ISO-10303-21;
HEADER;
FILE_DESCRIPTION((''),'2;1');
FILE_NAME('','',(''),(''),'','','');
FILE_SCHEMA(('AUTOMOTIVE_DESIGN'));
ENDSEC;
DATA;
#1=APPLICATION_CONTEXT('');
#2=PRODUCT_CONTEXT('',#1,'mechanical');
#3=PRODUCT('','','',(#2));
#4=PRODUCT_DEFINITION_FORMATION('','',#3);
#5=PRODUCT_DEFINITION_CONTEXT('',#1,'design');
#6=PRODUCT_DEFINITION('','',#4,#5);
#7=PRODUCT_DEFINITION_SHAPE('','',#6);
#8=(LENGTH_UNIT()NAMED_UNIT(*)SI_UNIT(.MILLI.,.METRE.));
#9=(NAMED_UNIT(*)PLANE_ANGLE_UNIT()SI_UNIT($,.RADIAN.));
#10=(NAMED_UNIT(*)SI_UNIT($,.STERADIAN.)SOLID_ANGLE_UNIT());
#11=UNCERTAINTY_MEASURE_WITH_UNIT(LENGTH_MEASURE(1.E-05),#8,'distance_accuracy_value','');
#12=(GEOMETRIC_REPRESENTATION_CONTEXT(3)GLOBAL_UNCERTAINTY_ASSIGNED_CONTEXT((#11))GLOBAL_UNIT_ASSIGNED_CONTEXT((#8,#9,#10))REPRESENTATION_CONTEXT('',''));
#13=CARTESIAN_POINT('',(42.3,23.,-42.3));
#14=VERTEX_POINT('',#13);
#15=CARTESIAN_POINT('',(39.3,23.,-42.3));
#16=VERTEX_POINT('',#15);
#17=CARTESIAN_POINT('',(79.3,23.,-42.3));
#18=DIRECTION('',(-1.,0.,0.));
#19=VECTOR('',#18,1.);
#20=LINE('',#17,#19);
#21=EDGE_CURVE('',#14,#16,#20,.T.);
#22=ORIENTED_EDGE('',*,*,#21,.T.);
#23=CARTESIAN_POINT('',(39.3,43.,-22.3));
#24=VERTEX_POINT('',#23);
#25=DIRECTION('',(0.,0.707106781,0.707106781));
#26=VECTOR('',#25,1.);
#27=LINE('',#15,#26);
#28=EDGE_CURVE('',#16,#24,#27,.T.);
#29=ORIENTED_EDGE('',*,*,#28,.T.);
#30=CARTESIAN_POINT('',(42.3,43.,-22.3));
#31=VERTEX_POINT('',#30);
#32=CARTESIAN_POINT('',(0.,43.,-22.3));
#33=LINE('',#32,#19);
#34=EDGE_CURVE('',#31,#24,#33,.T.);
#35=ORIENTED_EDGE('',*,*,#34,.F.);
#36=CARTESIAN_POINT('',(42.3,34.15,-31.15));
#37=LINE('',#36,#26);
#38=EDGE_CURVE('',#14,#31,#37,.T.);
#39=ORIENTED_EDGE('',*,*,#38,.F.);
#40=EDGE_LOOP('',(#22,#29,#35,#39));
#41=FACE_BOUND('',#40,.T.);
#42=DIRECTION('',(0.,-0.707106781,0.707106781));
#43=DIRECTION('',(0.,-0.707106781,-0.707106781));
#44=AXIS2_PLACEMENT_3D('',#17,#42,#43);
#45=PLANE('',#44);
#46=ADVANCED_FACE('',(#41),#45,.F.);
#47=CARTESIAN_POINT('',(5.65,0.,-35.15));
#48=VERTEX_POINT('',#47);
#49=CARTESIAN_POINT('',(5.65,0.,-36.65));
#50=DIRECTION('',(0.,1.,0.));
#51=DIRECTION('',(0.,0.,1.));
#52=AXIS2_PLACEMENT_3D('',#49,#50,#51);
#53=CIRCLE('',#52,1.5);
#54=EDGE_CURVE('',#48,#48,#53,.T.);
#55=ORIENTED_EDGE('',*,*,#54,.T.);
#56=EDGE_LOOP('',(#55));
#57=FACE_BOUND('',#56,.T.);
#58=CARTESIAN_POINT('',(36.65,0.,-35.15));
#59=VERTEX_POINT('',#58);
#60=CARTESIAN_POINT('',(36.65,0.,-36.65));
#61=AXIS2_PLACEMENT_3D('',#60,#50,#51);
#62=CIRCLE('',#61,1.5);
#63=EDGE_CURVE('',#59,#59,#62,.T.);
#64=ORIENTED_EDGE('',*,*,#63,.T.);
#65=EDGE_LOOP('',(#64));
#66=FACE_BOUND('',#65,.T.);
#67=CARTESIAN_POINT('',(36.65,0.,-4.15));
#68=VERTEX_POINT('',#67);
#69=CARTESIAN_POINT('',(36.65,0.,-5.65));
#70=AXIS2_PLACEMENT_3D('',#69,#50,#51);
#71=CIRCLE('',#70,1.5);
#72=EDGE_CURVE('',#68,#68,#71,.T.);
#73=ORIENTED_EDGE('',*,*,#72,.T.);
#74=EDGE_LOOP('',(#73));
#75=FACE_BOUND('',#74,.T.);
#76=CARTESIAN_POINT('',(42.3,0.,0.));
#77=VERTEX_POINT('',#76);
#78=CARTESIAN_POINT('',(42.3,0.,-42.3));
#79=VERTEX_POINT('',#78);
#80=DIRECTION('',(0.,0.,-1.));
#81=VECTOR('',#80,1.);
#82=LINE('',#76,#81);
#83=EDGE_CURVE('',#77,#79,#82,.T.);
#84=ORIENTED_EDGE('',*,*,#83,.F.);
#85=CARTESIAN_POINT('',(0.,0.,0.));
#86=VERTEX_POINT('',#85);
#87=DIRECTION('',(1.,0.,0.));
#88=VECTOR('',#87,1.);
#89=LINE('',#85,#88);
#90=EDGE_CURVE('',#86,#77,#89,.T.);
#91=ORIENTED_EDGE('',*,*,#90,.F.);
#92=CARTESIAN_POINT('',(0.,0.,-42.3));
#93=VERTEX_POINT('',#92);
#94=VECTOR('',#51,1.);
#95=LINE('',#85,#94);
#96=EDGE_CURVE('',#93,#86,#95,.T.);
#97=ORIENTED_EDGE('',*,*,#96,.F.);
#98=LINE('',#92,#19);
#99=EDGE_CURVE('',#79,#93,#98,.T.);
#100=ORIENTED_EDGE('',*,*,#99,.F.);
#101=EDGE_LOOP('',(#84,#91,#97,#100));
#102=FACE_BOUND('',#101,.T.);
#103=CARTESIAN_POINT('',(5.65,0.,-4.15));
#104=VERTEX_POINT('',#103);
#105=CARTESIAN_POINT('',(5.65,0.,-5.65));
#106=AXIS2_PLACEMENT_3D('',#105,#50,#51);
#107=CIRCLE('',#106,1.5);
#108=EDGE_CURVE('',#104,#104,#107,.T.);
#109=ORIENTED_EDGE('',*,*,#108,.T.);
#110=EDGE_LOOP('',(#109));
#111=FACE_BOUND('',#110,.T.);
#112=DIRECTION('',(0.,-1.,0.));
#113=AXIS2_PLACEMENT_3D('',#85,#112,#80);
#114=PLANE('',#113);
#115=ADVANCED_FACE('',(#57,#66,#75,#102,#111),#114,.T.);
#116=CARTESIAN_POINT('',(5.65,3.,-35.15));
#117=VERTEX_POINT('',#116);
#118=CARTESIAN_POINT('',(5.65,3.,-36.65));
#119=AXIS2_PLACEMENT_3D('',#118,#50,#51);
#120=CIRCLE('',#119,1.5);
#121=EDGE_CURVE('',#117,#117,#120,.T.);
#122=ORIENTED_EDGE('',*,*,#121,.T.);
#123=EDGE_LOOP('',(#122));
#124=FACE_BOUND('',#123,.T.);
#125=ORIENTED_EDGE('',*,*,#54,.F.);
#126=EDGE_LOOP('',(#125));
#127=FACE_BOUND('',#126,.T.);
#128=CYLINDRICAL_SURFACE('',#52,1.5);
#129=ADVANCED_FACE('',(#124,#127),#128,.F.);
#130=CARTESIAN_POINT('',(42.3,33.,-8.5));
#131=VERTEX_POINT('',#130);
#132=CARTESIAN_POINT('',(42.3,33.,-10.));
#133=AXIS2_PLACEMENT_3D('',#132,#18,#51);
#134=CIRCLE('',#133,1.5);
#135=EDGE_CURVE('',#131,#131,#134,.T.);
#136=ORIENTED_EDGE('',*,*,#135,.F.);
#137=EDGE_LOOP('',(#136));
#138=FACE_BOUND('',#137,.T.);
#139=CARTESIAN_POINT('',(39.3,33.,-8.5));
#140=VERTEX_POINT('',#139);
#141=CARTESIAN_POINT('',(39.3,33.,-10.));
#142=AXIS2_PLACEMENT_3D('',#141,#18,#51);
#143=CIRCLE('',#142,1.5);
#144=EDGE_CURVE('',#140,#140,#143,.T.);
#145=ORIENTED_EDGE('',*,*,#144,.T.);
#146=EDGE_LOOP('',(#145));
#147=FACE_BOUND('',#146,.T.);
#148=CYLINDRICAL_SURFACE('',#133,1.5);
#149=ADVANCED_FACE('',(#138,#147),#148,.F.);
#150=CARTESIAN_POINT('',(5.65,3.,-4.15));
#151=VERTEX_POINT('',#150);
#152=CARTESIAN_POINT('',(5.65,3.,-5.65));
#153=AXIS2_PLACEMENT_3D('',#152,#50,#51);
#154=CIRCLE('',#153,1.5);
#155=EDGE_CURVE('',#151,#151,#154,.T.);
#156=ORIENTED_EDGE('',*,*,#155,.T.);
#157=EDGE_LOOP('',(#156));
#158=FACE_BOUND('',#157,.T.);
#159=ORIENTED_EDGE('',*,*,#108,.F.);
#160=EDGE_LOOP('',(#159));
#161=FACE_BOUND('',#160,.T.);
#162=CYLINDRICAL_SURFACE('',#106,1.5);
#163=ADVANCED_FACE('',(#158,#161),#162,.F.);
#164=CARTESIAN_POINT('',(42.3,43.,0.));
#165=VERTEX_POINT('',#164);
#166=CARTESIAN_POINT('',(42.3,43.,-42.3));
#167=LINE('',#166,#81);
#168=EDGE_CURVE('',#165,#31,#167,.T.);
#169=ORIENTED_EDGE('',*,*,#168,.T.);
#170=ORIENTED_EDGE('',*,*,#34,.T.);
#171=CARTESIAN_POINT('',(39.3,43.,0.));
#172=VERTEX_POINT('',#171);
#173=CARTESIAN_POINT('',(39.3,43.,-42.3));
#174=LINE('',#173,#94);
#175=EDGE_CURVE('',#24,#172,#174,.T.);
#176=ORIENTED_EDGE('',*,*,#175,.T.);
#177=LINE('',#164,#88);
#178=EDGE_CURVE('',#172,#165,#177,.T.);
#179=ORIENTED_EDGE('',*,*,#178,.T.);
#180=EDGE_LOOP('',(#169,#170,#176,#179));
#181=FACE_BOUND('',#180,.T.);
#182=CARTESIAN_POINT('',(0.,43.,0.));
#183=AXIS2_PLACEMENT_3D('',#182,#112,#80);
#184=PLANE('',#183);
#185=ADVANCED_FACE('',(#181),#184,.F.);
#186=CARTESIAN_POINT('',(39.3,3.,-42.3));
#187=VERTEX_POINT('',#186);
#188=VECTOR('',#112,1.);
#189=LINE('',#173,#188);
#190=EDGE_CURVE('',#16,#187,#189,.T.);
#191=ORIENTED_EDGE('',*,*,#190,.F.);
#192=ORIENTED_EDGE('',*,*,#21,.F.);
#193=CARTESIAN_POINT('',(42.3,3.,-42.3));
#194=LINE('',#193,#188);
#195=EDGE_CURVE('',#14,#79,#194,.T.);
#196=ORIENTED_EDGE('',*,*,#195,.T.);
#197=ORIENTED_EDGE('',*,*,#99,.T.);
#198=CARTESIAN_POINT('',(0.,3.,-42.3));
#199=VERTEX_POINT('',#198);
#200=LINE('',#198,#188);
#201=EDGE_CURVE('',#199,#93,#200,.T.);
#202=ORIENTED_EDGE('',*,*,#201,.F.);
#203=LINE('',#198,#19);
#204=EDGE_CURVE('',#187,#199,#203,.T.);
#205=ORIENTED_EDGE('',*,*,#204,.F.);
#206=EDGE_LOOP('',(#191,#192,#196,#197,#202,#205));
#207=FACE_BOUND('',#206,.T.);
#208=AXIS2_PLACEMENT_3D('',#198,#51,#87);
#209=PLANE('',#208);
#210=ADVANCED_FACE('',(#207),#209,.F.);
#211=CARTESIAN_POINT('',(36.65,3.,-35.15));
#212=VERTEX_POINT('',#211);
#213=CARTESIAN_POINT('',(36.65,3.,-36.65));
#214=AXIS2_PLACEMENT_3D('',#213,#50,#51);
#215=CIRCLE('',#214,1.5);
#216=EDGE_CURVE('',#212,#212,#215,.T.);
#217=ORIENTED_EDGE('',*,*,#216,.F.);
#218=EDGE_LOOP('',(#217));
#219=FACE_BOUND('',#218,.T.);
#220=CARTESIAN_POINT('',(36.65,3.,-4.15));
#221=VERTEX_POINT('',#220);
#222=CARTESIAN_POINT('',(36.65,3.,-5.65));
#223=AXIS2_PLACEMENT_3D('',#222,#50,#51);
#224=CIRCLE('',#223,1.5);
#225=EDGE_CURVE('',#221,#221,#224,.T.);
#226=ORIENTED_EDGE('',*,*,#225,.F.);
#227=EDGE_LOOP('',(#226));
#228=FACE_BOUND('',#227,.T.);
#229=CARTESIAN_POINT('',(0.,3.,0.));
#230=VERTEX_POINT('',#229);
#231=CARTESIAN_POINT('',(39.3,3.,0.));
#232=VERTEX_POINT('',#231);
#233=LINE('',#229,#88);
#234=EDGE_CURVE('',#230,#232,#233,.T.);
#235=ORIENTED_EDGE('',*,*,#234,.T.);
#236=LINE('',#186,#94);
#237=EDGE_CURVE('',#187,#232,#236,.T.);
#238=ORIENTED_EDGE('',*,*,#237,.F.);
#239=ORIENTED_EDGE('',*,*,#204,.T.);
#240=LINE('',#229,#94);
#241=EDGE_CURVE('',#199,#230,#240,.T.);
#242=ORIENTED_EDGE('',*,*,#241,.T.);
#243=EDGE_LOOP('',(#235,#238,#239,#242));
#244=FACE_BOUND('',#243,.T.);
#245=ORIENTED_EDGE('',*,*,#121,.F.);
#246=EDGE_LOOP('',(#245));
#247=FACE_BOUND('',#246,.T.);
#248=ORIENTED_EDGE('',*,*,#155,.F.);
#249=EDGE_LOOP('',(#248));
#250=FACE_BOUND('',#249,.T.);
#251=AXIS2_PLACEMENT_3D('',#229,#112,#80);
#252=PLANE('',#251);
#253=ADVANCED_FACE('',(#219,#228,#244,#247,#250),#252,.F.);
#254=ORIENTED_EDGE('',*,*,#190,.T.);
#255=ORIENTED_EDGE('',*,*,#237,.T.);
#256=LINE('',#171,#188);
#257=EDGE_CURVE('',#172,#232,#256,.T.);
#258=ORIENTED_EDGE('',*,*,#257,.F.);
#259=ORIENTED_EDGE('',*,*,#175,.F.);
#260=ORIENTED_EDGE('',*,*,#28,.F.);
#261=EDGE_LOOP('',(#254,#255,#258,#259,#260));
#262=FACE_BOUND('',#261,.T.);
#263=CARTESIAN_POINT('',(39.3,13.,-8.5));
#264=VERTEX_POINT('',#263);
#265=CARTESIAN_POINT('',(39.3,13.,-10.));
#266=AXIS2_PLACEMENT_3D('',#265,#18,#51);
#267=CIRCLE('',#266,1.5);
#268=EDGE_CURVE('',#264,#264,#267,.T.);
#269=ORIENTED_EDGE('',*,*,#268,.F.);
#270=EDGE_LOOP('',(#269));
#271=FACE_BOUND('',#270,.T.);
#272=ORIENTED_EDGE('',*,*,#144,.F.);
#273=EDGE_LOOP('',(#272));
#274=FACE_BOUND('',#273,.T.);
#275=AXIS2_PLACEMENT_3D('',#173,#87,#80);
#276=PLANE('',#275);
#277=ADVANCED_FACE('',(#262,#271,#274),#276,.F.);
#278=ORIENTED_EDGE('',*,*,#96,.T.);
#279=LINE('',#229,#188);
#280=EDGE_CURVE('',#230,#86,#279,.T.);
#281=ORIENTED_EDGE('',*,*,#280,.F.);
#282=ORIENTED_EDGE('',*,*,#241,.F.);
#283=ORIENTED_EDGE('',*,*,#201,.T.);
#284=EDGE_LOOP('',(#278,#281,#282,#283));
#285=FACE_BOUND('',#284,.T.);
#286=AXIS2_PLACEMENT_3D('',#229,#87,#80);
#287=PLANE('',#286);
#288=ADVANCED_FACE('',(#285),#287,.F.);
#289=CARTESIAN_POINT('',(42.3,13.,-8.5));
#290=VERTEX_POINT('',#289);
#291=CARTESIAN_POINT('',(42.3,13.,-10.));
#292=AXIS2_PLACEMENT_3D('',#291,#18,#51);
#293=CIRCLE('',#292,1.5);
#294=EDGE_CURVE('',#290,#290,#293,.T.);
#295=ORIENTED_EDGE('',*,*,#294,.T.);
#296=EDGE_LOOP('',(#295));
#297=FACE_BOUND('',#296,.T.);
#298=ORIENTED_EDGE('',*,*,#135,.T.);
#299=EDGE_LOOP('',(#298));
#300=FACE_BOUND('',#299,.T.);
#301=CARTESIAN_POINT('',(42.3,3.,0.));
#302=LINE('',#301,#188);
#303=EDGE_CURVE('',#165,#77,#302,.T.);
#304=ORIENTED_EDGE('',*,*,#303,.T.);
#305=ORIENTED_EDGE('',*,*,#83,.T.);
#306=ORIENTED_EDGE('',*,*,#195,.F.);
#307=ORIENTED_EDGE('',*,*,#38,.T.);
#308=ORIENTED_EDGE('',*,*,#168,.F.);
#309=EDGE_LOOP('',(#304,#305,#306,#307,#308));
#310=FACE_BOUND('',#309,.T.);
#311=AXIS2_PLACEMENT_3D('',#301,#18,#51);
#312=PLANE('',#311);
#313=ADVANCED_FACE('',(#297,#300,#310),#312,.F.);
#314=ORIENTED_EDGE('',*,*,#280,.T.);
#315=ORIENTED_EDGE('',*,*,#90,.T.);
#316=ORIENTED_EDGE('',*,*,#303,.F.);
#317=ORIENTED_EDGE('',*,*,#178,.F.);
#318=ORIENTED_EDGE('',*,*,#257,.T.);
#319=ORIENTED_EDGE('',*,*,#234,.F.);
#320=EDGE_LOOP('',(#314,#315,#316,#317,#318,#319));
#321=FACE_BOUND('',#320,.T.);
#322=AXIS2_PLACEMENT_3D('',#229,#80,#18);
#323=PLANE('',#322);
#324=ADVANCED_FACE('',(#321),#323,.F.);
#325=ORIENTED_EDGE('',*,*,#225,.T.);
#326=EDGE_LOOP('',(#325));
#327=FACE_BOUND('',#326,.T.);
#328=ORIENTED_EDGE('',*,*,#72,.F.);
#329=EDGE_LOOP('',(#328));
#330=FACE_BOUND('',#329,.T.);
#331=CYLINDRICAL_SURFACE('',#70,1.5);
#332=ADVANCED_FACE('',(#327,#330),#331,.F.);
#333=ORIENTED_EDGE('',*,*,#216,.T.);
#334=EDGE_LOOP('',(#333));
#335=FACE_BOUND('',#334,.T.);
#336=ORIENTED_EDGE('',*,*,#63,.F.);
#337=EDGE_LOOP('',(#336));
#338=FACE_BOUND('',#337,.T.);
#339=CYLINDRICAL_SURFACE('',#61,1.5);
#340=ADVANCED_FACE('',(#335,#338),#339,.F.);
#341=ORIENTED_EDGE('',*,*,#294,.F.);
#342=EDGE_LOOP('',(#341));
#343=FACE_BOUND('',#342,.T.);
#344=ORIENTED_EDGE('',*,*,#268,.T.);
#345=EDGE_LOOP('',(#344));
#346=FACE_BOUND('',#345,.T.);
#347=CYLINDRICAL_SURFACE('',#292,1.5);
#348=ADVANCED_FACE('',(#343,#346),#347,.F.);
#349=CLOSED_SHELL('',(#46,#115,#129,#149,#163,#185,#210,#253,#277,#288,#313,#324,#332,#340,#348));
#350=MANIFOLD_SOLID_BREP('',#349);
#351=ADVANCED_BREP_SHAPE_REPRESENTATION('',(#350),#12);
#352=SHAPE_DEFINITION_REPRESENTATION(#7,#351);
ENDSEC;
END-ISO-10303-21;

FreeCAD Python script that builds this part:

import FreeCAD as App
import Part
import Sketcher
from FreeCAD import Vector

doc = App.newDocument("Part")
params = doc.addObject("Spreadsheet::Sheet", "Params")
for row, (alias, value) in enumerate([
    ("sketch1_width", "42.3 mm"),
    ("pad1_length", "3 mm"),
    ("sketch2_diameter", "3 mm"),
    ("sketch3_width", "3 mm"),
    ("sketch3_height", "42.3 mm"),
    ("pad2_length", "40 mm"),
    ("sketch4_width", "20 mm"),
    ("pocket2_length", "40 mm"),
    ("sketch5_diameter", "3 mm"),
], start=1):
    params.set(f"A{row}", alias)
    params.set(f"B{row}", "=" + value)
    params.setAlias(f"B{row}", alias)

body = doc.addObject("PartDesign::Body", "Body")

# Sketch on XZ plane
sketch1 = body.newObject("Sketcher::SketchObject", "Sketch")
sketch1.AttachmentSupport = (doc.getObject("XZ_Plane"), [""])
sketch1.MapMode = "FlatFace"
sketch1.addGeometry([
    Part.LineSegment(Vector(0, -42, 0), Vector(0, 0, 0)),
    Part.LineSegment(Vector(0, 0, 0), Vector(42, 0, 0)),
    Part.LineSegment(Vector(42, 0, 0), Vector(42, -42, 0)),
    Part.LineSegment(Vector(42, -42, 0), Vector(0, -42, 0)),
], False)
sketch1.addConstraint([
    Sketcher.Constraint("Coincident", 0, 2, 1, 1),
    Sketcher.Constraint("Coincident", 1, 2, 2, 1),
    Sketcher.Constraint("Coincident", 2, 2, 3, 1),
    Sketcher.Constraint("Coincident", 3, 2, 0, 1),
    Sketcher.Constraint("Vertical", 0),
    Sketcher.Constraint("Horizontal", 1),
    Sketcher.Constraint("Vertical", 2),
    Sketcher.Constraint("Horizontal", 3),
    Sketcher.Constraint("Coincident", 0, 2, -1, 1),
    Sketcher.Constraint("Equal", 3, 0),
    Sketcher.Constraint("DistanceX", 1, 1, 1, 2, 42.3),
])
sketch1.setExpression("Constraints[10]", "Params.sketch1_width")
pad1 = body.newObject("PartDesign::Pad", "Pad")
pad1.Profile = sketch1
pad1.setExpression("Length", "Params.pad1_length")
pad1.Reversed = True

# Sketch on XZ plane
sketch2 = body.newObject("Sketcher::SketchObject", "Sketch001")
sketch2.AttachmentSupport = (doc.getObject("XZ_Plane"), [""])
sketch2.MapMode = "FlatFace"
sketch2.AttachmentOffset = App.Placement(Vector(0, 0, -3), App.Rotation())
sketch2.addGeometry([
    Part.Circle(Vector(5.7, -5.7, 0), Vector(0, 0, 1), 1.5),
    Part.Circle(Vector(36.6, -5.7, 0), Vector(0, 0, 1), 1.5),
    Part.Circle(Vector(36.6, -36.6, 0), Vector(0, 0, 1), 1.5),
    Part.Circle(Vector(5.7, -36.6, 0), Vector(0, 0, 1), 1.5),
], False)
sketch2.addConstraint([
    Sketcher.Constraint("Equal", 0, 1),
    Sketcher.Constraint("Equal", 1, 2),
    Sketcher.Constraint("Equal", 2, 3),
    Sketcher.Constraint("Horizontal", 0, 3, 1, 3),
    Sketcher.Constraint("Horizontal", 2, 3, 3, 3),
    Sketcher.Constraint("Vertical", 1, 3, 2, 3),
    Sketcher.Constraint("Vertical", 0, 3, 3, 3),
    Sketcher.Constraint("Diameter", 0, 3.0),
    Sketcher.Constraint("DistanceX", 0, 3, 1, 3, 31.0),
    Sketcher.Constraint("DistanceY", 2, 3, 1, 3, 31.0),
    Sketcher.Constraint("DistanceX", -1, 1, 0, 3, 5.65),
    Sketcher.Constraint("DistanceY", 0, 3, -1, 1, 5.65),
])
sketch2.setExpression("Constraints[7]", "Params.sketch2_diameter")
pocket1 = body.newObject("PartDesign::Pocket", "Pocket")
pocket1.Profile = sketch2
pocket1.Type = "ThroughAll"
pocket1.Reversed = True

# Sketch on XZ plane
sketch3 = body.newObject("Sketcher::SketchObject", "Sketch002")
sketch3.AttachmentSupport = (doc.getObject("XZ_Plane"), [""])
sketch3.MapMode = "FlatFace"
sketch3.AttachmentOffset = App.Placement(Vector(0, 0, -3), App.Rotation())
sketch3.addGeometry([
    Part.LineSegment(Vector(39.3, -42.3, 0), Vector(39.3, 0, 0)),
    Part.LineSegment(Vector(39.3, 0, 0), Vector(42.3, 0, 0)),
    Part.LineSegment(Vector(42.3, 0, 0), Vector(42.3, -42.3, 0)),
    Part.LineSegment(Vector(42.3, -42.3, 0), Vector(39.3, -42.3, 0)),
], False)
sketch3.addConstraint([
    Sketcher.Constraint("Coincident", 0, 2, 1, 1),
    Sketcher.Constraint("Coincident", 1, 2, 2, 1),
    Sketcher.Constraint("Coincident", 2, 2, 3, 1),
    Sketcher.Constraint("Coincident", 3, 2, 0, 1),
    Sketcher.Constraint("Vertical", 0),
    Sketcher.Constraint("Horizontal", 1),
    Sketcher.Constraint("Vertical", 2),
    Sketcher.Constraint("Horizontal", 3),
    Sketcher.Constraint("PointOnObject", 0, 2, -1),
    Sketcher.Constraint("DistanceX", 1, 1, 1, 2, 3.0),
    Sketcher.Constraint("DistanceY", 0, 1, 0, 2, 42.3),
    Sketcher.Constraint("DistanceX", -1, 1, 0, 2, 39.3),
])
sketch3.setExpression("Constraints[9]", "Params.sketch3_width")
sketch3.setExpression("Constraints[10]", "Params.sketch3_height")
pad2 = body.newObject("PartDesign::Pad", "Pad001")
pad2.Profile = sketch3
pad2.setExpression("Length", "Params.pad2_length")
pad2.Reversed = True

# Sketch on YZ plane
sketch4 = body.newObject("Sketcher::SketchObject", "Sketch003")
sketch4.AttachmentSupport = (doc.getObject("YZ_Plane"), [""])
sketch4.MapMode = "FlatFace"
sketch4.AttachmentOffset = App.Placement(Vector(0, 0, 39.3), App.Rotation())
sketch4.addGeometry([
    Part.LineSegment(Vector(43, -22, 0), Vector(43, -42, 0)),
    Part.LineSegment(Vector(43, -42, 0), Vector(23, -42, 0)),
    Part.LineSegment(Vector(23, -42, 0), Vector(43, -22, 0)),
], False)
sketch4.addConstraint([
    Sketcher.Constraint("Coincident", 0, 2, 1, 1),
    Sketcher.Constraint("Coincident", 1, 2, 2, 1),
    Sketcher.Constraint("Coincident", 2, 2, 0, 1),
    Sketcher.Constraint("Vertical", 0),
    Sketcher.Constraint("Horizontal", 1),
    Sketcher.Constraint("Equal", 1, 0),
    Sketcher.Constraint("DistanceX", 1, 2, 1, 1, 20.0),
    Sketcher.Constraint("DistanceX", -1, 1, 0, 2, 43.0),
    Sketcher.Constraint("DistanceY", 0, 2, -1, 1, 42.3),
])
sketch4.setExpression("Constraints[6]", "Params.sketch4_width")
pocket2 = body.newObject("PartDesign::Pocket", "Pocket001")
pocket2.Profile = sketch4
pocket2.setExpression("Length", "Params.pocket2_length")
pocket2.Reversed = True

# Sketch on YZ plane
sketch5 = body.newObject("Sketcher::SketchObject", "Sketch004")
sketch5.AttachmentSupport = (doc.getObject("YZ_Plane"), [""])
sketch5.MapMode = "FlatFace"
sketch5.AttachmentOffset = App.Placement(Vector(0, 0, 39.3), App.Rotation())
sketch5.addGeometry([
    Part.Circle(Vector(33, -10, 0), Vector(0, 0, 1), 1.5),
    Part.Circle(Vector(13, -10, 0), Vector(0, 0, 1), 1.5),
], False)
sketch5.addConstraint([
    Sketcher.Constraint("Equal", 0, 1),
    Sketcher.Constraint("Horizontal", 0, 3, 1, 3),
    Sketcher.Constraint("Diameter", 0, 3.0),
    Sketcher.Constraint("DistanceX", -1, 1, 0, 3, 33.0),
    Sketcher.Constraint("DistanceY", 0, 3, -1, 1, 10.0),
    Sketcher.Constraint("DistanceX", -1, 1, 1, 3, 13.0),
])
sketch5.setExpression("Constraints[2]", "Params.sketch5_diameter")
pocket3 = body.newObject("PartDesign::Pocket", "Pocket002")
pocket3.Profile = sketch5
pocket3.Type = "ThroughAll"
pocket3.Reversed = True

doc.recompute()
